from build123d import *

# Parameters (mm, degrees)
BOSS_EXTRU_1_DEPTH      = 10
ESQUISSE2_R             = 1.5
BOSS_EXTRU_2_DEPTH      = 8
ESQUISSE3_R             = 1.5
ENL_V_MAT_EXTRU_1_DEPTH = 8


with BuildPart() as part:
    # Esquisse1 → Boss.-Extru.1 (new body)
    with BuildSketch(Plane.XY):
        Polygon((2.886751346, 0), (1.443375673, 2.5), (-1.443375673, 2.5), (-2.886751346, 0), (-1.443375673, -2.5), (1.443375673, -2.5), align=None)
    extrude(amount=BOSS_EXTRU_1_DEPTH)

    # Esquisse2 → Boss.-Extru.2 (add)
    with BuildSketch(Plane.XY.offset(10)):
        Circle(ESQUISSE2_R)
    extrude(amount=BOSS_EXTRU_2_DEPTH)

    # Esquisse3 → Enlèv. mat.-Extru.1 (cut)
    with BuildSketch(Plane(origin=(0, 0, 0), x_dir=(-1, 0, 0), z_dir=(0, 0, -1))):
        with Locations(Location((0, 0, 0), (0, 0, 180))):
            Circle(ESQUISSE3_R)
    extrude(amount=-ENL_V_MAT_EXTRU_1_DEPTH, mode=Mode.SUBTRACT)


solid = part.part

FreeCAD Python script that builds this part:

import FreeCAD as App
import Part
import Sketcher

V = App.Vector
Q = App.Units.Quantity

doc = App.newDocument("Part")
body = doc.addObject("PartDesign::Body", "Body")

sketch1 = body.newObject("Sketcher::SketchObject", "Sketch")
sketch1.AttachmentSupport = (doc.getObject("XY_Plane"), [""])
sketch1.MapMode = "FlatFace"
sketch1.addGeometry(Part.LineSegment(V(2.9, 0, 0), V(1.4, 2.5, 0)), False)
sketch1.addGeometry(Part.LineSegment(V(1.4, 2.5, 0), V(-1.4, 2.5, 0)), False)
sketch1.addGeometry(Part.LineSegment(V(-1.4, 2.5, 0), V(-2.9, 0, 0)), False)
sketch1.addGeometry(Part.LineSegment(V(-2.9, 0, 0), V(-1.4, -2.5, 0)), False)
sketch1.addGeometry(Part.LineSegment(V(-1.4, -2.5, 0), V(1.4, -2.5, 0)), False)
sketch1.addGeometry(Part.LineSegment(V(1.4, -2.5, 0), V(2.9, 0, 0)), False)
sketch1.addConstraint(Sketcher.Constraint("Coincident", 0, 2, 1, 1))
sketch1.addConstraint(Sketcher.Constraint("Coincident", 1, 2, 2, 1))
sketch1.addConstraint(Sketcher.Constraint("Coincident", 2, 2, 3, 1))
sketch1.addConstraint(Sketcher.Constraint("Coincident", 3, 2, 4, 1))
sketch1.addConstraint(Sketcher.Constraint("Coincident", 4, 2, 5, 1))
sketch1.addConstraint(Sketcher.Constraint("Coincident", 5, 2, 0, 1))
sketch1.addConstraint(Sketcher.Constraint("Horizontal", 1))
sketch1.addConstraint(Sketcher.Constraint("Horizontal", 4))
sketch1.addConstraint(Sketcher.Constraint("Symmetric", 0, 2, 3, 2, -1, 1))
sketch1.addConstraint(Sketcher.Constraint("Symmetric", 2, 2, 5, 2, -1, 1))
sketch1.addConstraint(Sketcher.Constraint("PointOnObject", 2, 2, -1))
sketch1.addConstraint(Sketcher.Constraint("Parallel", 2, 5))
sketch1.addConstraint(Sketcher.Constraint("Vertical", 1, 2, 3, 2))
sketch1.addConstraint(Sketcher.Constraint("Angle", 0, Q("120 deg")))
sketch1.addConstraint(Sketcher.Constraint("DistanceY", 3, 2, 1, 2, Q("5 mm")))
sketch1.addConstraint(Sketcher.Constraint("DistanceX", 1, 2, 1, 1, Q("2.886751 mm")))
pad1 = body.newObject("PartDesign::Pad", "Pad")
pad1.Profile = sketch1
pad1.Length = 10

sketch2 = body.newObject("Sketcher::SketchObject", "Sketch001")
sketch2.AttachmentSupport = (doc.getObject("XY_Plane"), [""])
sketch2.MapMode = "FlatFace"
sketch2.AttachmentOffset = App.Placement(V(0, 0, 10), App.Rotation())
sketch2.addGeometry(Part.Circle(V(0, 0, 0), V(0, 0, 1), 1.5), False)
sketch2.addConstraint(Sketcher.Constraint("Coincident", 0, 3, -1, 1))
sketch2.addConstraint(Sketcher.Constraint("Diameter", 0, Q("3 mm")))
pad2 = body.newObject("PartDesign::Pad", "Pad001")
pad2.Profile = sketch2
pad2.Length = 8

sketch3 = body.newObject("Sketcher::SketchObject", "Sketch002")
sketch3.AttachmentSupport = (doc.getObject("XY_Plane"), [""])
sketch3.MapMode = "FlatFace"
sketch3.addGeometry(Part.Circle(V(0, 0, 0), V(0, 0, 1), 1.5), False)
sketch3.addConstraint(Sketcher.Constraint("Coincident", 0, 3, -1, 1))
sketch3.addConstraint(Sketcher.Constraint("Diameter", 0, Q("3 mm")))
pocket1 = body.newObject("PartDesign::Pocket", "Pocket")
pocket1.Profile = sketch3
pocket1.Length = 8
pocket1.Reversed = True

doc.recompute()
